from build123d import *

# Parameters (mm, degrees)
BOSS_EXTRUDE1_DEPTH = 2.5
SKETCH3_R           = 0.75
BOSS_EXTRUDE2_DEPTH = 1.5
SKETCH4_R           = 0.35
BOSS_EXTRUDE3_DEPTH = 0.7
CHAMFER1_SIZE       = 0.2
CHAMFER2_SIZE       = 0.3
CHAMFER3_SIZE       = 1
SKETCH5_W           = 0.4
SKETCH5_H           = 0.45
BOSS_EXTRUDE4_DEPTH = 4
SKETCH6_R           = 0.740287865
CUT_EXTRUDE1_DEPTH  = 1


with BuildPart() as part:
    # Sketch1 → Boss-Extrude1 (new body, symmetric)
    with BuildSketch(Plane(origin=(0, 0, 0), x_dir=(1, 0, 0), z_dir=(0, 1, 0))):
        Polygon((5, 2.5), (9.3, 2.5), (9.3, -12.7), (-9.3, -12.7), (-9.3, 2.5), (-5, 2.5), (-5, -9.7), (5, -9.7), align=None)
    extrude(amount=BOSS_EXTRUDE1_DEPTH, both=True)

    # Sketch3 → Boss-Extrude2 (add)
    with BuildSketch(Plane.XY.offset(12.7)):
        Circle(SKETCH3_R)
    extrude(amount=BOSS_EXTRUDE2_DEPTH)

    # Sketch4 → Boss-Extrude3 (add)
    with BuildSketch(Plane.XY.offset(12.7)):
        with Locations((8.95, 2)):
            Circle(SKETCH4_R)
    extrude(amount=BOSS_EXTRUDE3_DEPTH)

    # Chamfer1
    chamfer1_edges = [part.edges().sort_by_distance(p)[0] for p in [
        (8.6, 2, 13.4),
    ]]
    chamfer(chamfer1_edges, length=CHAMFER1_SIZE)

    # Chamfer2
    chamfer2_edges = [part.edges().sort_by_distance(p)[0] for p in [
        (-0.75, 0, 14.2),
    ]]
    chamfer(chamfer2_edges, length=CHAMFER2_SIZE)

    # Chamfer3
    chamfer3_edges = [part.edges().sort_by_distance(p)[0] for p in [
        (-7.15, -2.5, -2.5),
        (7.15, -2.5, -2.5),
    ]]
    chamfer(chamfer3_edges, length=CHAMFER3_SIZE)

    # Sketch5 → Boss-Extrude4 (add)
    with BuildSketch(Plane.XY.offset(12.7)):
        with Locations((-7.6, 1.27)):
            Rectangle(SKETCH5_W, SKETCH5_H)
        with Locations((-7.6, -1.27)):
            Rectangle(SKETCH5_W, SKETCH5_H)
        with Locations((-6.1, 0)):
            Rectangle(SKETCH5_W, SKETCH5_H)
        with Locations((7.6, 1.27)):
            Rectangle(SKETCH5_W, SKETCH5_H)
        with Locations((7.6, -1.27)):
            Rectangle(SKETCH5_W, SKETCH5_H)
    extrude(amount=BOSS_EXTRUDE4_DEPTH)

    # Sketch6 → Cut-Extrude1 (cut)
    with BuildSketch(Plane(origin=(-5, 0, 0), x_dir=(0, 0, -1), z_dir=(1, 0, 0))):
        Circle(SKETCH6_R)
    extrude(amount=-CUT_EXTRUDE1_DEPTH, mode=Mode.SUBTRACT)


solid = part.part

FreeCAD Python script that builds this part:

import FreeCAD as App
import Part
import Sketcher


def edges_at(feature, points):
    """Names of the edges that pass closest to the given points."""
    edges = feature.Shape.Edges
    near = lambda p: min(range(len(edges)), key=lambda i: edges[i].distToShape(Part.Vertex(*p))[0])
    return sorted({f"Edge{near(p) + 1}" for p in points})

doc = App.newDocument("Part")
body = doc.addObject("PartDesign::Body", "Body")

# Sketch on XZ plane
sketch1 = body.newObject("Sketcher::SketchObject", "Sketch")
sketch1.AttachmentSupport = (doc.getObject("XZ_Plane"), [""])
sketch1.MapMode = "FlatFace"
sketch1.addGeometry(Part.LineSegment(App.Vector(9.3, -2.5, 0), App.Vector(5, -2.5, 0)), False)
sketch1.addGeometry(Part.LineSegment(App.Vector(5, -2.5, 0), App.Vector(5, 9.7, 0)), False)
sketch1.addGeometry(Part.LineSegment(App.Vector(5, 9.7, 0), App.Vector(-5, 9.7, 0)), False)
sketch1.addGeometry(Part.LineSegment(App.Vector(-5, 9.7, 0), App.Vector(-5, -2.5, 0)), False)
sketch1.addGeometry(Part.LineSegment(App.Vector(-5, -2.5, 0), App.Vector(-9.3, -2.5, 0)), False)
sketch1.addGeometry(Part.LineSegment(App.Vector(-9.3, -2.5, 0), App.Vector(-9.3, 12.7, 0)), False)
sketch1.addGeometry(Part.LineSegment(App.Vector(-9.3, 12.7, 0), App.Vector(9.3, 12.7, 0)), False)
sketch1.addGeometry(Part.LineSegment(App.Vector(9.3, 12.7, 0), App.Vector(9.3, -2.5, 0)), False)
sketch1.addConstraint(Sketcher.Constraint("Coincident", 0, 2, 1, 1))
sketch1.addConstraint(Sketcher.Constraint("Coincident", 1, 2, 2, 1))
sketch1.addConstraint(Sketcher.Constraint("Coincident", 2, 2, 3, 1))
sketch1.addConstraint(Sketcher.Constraint("Coincident", 3, 2, 4, 1))
sketch1.addConstraint(Sketcher.Constraint("Coincident", 4, 2, 5, 1))
sketch1.addConstraint(Sketcher.Constraint("Coincident", 5, 2, 6, 1))
sketch1.addConstraint(Sketcher.Constraint("Coincident", 6, 2, 7, 1))
sketch1.addConstraint(Sketcher.Constraint("Coincident", 7, 2, 0, 1))
sketch1.addConstraint(Sketcher.Constraint("Horizontal", 0))
sketch1.addConstraint(Sketcher.Constraint("Vertical", 1))
sketch1.addConstraint(Sketcher.Constraint("Horizontal", 2))
sketch1.addConstraint(Sketcher.Constraint("Vertical", 3))
sketch1.addConstraint(Sketcher.Constraint("Horizontal", 4))
sketch1.addConstraint(Sketcher.Constraint("Vertical", 5))
sketch1.addConstraint(Sketcher.Constraint("Horizontal", 6))
sketch1.addConstraint(Sketcher.Constraint("Vertical", 7))
sketch1.addConstraint(Sketcher.Constraint("Symmetric", 0, 2, 3, 2, -2))
sketch1.addConstraint(Sketcher.Constraint("Equal", 0, 4))
sketch1.addConstraint(Sketcher.Constraint("DistanceX", 2, 2, 2, 1, 10.0))
sketch1.addConstraint(Sketcher.Constraint("DistanceX", 0, 2, 0, 1, 4.3))
sketch1.addConstraint(Sketcher.Constraint("DistanceY", 1, 1, 1, 2, 12.2))
sketch1.addConstraint(Sketcher.Constraint("DistanceY", 5, 1, 5, 2, 15.2))
sketch1.addConstraint(Sketcher.Constraint("DistanceY", 0, 2, -1, 1, 2.5))
pad1 = body.newObject("PartDesign::Pad", "Pad")
pad1.Profile = sketch1
pad1.Length = 5
pad1.Midplane = True

# Sketch on XY plane
sketch2 = body.newObject("Sketcher::SketchObject", "Sketch001")
sketch2.AttachmentSupport = (doc.getObject("XY_Plane"), [""])
sketch2.MapMode = "FlatFace"
sketch2.AttachmentOffset = App.Placement(App.Vector(0, 0, 12.7), App.Rotation())
sketch2.addGeometry(Part.Circle(App.Vector(0, 0, 0), App.Vector(0, 0, 1), 0.8), False)
sketch2.addConstraint(Sketcher.Constraint("Coincident", 0, 3, -1, 1))
sketch2.addConstraint(Sketcher.Constraint("Diameter", 0, 1.5))
pad2 = body.newObject("PartDesign::Pad", "Pad001")
pad2.Profile = sketch2
pad2.Length = 1.5

# Sketch on XY plane
sketch3 = body.newObject("Sketcher::SketchObject", "Sketch002")
sketch3.AttachmentSupport = (doc.getObject("XY_Plane"), [""])
sketch3.MapMode = "FlatFace"
sketch3.AttachmentOffset = App.Placement(App.Vector(0, 0, 12.7), App.Rotation())
sketch3.addGeometry(Part.Circle(App.Vector(8.95, 2, 0), App.Vector(0, 0, 1), 0.35), False)
sketch3.addConstraint(Sketcher.Constraint("Diameter", 0, 0.7))
sketch3.addConstraint(Sketcher.Constraint("DistanceY", -1, 1, 0, 3, 2.0))
sketch3.addConstraint(Sketcher.Constraint("DistanceX", -1, 1, 0, 3, 8.95))
pad3 = body.newObject("PartDesign::Pad", "Pad002")
pad3.Profile = sketch3
pad3.Length = 0.7
doc.recompute()

chamfer = body.newObject("PartDesign::Chamfer", "Chamfer")
chamfer.Base = (pad3, edges_at(pad3, [(8.6, 2, 13.4)]))
chamfer.Size = 0.2
doc.recompute()

chamfer2 = body.newObject("PartDesign::Chamfer", "Chamfer001")
chamfer2.Base = (chamfer, edges_at(chamfer, [(-0.75, 0, 14.2)]))
chamfer2.Size = 0.3
doc.recompute()

chamfer3 = body.newObject("PartDesign::Chamfer", "Chamfer002")
chamfer3.Base = (chamfer2, edges_at(chamfer2, [(-7.15, -2.5, -2.5), (7.15, -2.5, -2.5)]))
chamfer3.Size = 1

# Sketch on XY plane
sketch4 = body.newObject("Sketcher::SketchObject", "Sketch003")
sketch4.AttachmentSupport = (doc.getObject("XY_Plane"), [""])
sketch4.MapMode = "FlatFace"
sketch4.AttachmentOffset = App.Placement(App.Vector(0, 0, 12.7), App.Rotation())
sketch4.addGeometry(Part.LineSegment(App.Vector(-7.8, 1.5, 0), App.Vector(-7.8, 1.04, 0)), False)
sketch4.addGeometry(Part.LineSegment(App.Vector(-7.8, 1.04, 0), App.Vector(-7.4, 1.04, 0)), False)
sketch4.addGeometry(Part.LineSegment(App.Vector(-7.4, 1.04, 0), App.Vector(-7.4, 1.5, 0)), False)
sketch4.addGeometry(Part.LineSegment(App.Vector(-7.4, 1.5, 0), App.Vector(-7.8, 1.5, 0)), False)
sketch4.addGeometry(Part.LineSegment(App.Vector(-7.8, -1.04, 0), App.Vector(-7.8, -1.5, 0)), False)
sketch4.addGeometry(Part.LineSegment(App.Vector(-7.8, -1.5, 0), App.Vector(-7.4, -1.5, 0)), False)
sketch4.addGeometry(Part.LineSegment(App.Vector(-7.4, -1.5, 0), App.Vector(-7.4, -1.04, 0)), False)
sketch4.addGeometry(Part.LineSegment(App.Vector(-7.4, -1.04, 0), App.Vector(-7.8, -1.04, 0)), False)
sketch4.addGeometry(Part.LineSegment(App.Vector(-6.3, 0.23, 0), App.Vector(-6.3, -0.23, 0)), False)
sketch4.addGeometry(Part.LineSegment(App.Vector(-6.3, -0.23, 0), App.Vector(-5.9, -0.23, 0)), False)
sketch4.addGeometry(Part.LineSegment(App.Vector(-5.9, -0.23, 0), App.Vector(-5.9, 0.23, 0)), False)
sketch4.addGeometry(Part.LineSegment(App.Vector(-5.9, 0.23, 0), App.Vector(-6.3, 0.23, 0)), False)
sketch4.addGeometry(Part.LineSegment(App.Vector(7.4, 1.5, 0), App.Vector(7.4, 1.04, 0)), False)
sketch4.addGeometry(Part.LineSegment(App.Vector(7.4, 1.04, 0), App.Vector(7.8, 1.04, 0)), False)
sketch4.addGeometry(Part.LineSegment(App.Vector(7.8, 1.04, 0), App.Vector(7.8, 1.5, 0)), False)
sketch4.addGeometry(Part.LineSegment(App.Vector(7.8, 1.5, 0), App.Vector(7.4, 1.5, 0)), False)
sketch4.addGeometry(Part.LineSegment(App.Vector(7.4, -1.04, 0), App.Vector(7.4, -1.5, 0)), False)
sketch4.addGeometry(Part.LineSegment(App.Vector(7.4, -1.5, 0), App.Vector(7.8, -1.5, 0)), False)
sketch4.addGeometry(Part.LineSegment(App.Vector(7.8, -1.5, 0), App.Vector(7.8, -1.04, 0)), False)
sketch4.addGeometry(Part.LineSegment(App.Vector(7.8, -1.04, 0), App.Vector(7.4, -1.04, 0)), False)
sketch4.addConstraint(Sketcher.Constraint("Coincident", 0, 2, 1, 1))
sketch4.addConstraint(Sketcher.Constraint("Coincident", 1, 2, 2, 1))
sketch4.addConstraint(Sketcher.Constraint("Coincident", 2, 2, 3, 1))
sketch4.addConstraint(Sketcher.Constraint("Coincident", 3, 2, 0, 1))
sketch4.addConstraint(Sketcher.Constraint("Coincident", 4, 2, 5, 1))
sketch4.addConstraint(Sketcher.Constraint("Coincident", 5, 2, 6, 1))
sketch4.addConstraint(Sketcher.Constraint("Coincident", 6, 2, 7, 1))
sketch4.addConstraint(Sketcher.Constraint("Coincident", 7, 2, 4, 1))
sketch4.addConstraint(Sketcher.Constraint("Coincident", 8, 2, 9, 1))
sketch4.addConstraint(Sketcher.Constraint("Coincident", 9, 2, 10, 1))
sketch4.addConstraint(Sketcher.Constraint("Coincident", 10, 2, 11, 1))
sketch4.addConstraint(Sketcher.Constraint("Coincident", 11, 2, 8, 1))
sketch4.addConstraint(Sketcher.Constraint("Coincident", 12, 2, 13, 1))
sketch4.addConstraint(Sketcher.Constraint("Coincident", 13, 2, 14, 1))
sketch4.addConstraint(Sketcher.Constraint("Coincident", 14, 2, 15, 1))
sketch4.addConstraint(Sketcher.Constraint("Coincident", 15, 2, 12, 1))
sketch4.addConstraint(Sketcher.Constraint("Coincident", 16, 2, 17, 1))
sketch4.addConstraint(Sketcher.Constraint("Coincident", 17, 2, 18, 1))
sketch4.addConstraint(Sketcher.Constraint("Coincident", 18, 2, 19, 1))
sketch4.addConstraint(Sketcher.Constraint("Coincident", 19, 2, 16, 1))
sketch4.addConstraint(Sketcher.Constraint("Vertical", 0))
sketch4.addConstraint(Sketcher.Constraint("Horizontal", 1))
sketch4.addConstraint(Sketcher.Constraint("Vertical", 2))
sketch4.addConstraint(Sketcher.Constraint("Horizontal", 3))
sketch4.addConstraint(Sketcher.Constraint("Vertical", 4))
sketch4.addConstraint(Sketcher.Constraint("Horizontal", 5))
sketch4.addConstraint(Sketcher.Constraint("Vertical", 6))
sketch4.addConstraint(Sketcher.Constraint("Horizontal", 7))
sketch4.addConstraint(Sketcher.Constraint("Vertical", 8))
sketch4.addConstraint(Sketcher.Constraint("Horizontal", 9))
sketch4.addConstraint(Sketcher.Constraint("Vertical", 10))
sketch4.addConstraint(Sketcher.Constraint("Horizontal", 11))
sketch4.addConstraint(Sketcher.Constraint("Vertical", 12))
sketch4.addConstraint(Sketcher.Constraint("Horizontal", 13))
sketch4.addConstraint(Sketcher.Constraint("Vertical", 14))
sketch4.addConstraint(Sketcher.Constraint("Horizontal", 15))
sketch4.addConstraint(Sketcher.Constraint("Vertical", 16))
sketch4.addConstraint(Sketcher.Constraint("Horizontal", 17))
sketch4.addConstraint(Sketcher.Constraint("Vertical", 18))
sketch4.addConstraint(Sketcher.Constraint("Horizontal", 19))
sketch4.addConstraint(Sketcher.Constraint("Symmetric", 6, 2, 12, 2, -1, 1))
sketch4.addConstraint(Sketcher.Constraint("Symmetric", 4, 2, 14, 2, -1, 1))
sketch4.addConstraint(Sketcher.Constraint("Symmetric", 2, 2, 16, 2, -1, 1))
sketch4.addConstraint(Sketcher.Constraint("Symmetric", 0, 2, 18, 2, -1, 1))
sketch4.addConstraint(Sketcher.Constraint("Symmetric", 1, 2, 12, 2, -2))
sketch4.addConstraint(Sketcher.Constraint("Symmetric", 3, 2, 14, 2, -2))
sketch4.addConstraint(Sketcher.Constraint("Equal", 7, 9))
sketch4.addConstraint(Sketcher.Constraint("Equal", 6, 8))
sketch4.addConstraint(Sketcher.Constraint("DistanceX", 1, 1, 1, 2, 0.4))
sketch4.addConstraint(Sketcher.Constraint("DistanceY", 0, 2, 0, 1, 0.45))
sketch4.addConstraint(Sketcher.Constraint("DistanceX", 0, 2, -1, 1, 7.8))
sketch4.addConstraint(Sketcher.Constraint("DistanceX", 8, 2, -1, 1, 6.3))
sketch4.addConstraint(Sketcher.Constraint("DistanceY", 4, 2, 0, 2, 2.54))
sketch4.addConstraint(Sketcher.Constraint("DistanceY", 6, 2, 8, 2, 0.82))
pad4 = body.newObject("PartDesign::Pad", "Pad003")
pad4.Profile = sketch4
pad4.Length = 4

# Sketch on YZ plane
sketch5 = body.newObject("Sketcher::SketchObject", "Sketch004")
sketch5.AttachmentSupport = (doc.getObject("YZ_Plane"), [""])
sketch5.MapMode = "FlatFace"
sketch5.AttachmentOffset = App.Placement(App.Vector(0, 0, -5), App.Rotation())
sketch5.addGeometry(Part.Circle(App.Vector(0, 0, 0), App.Vector(0, 0, 1), 0.7), False)
sketch5.addConstraint(Sketcher.Constraint("Coincident", 0, 3, -1, 1))
sketch5.addConstraint(Sketcher.Constraint("Diameter", 0, 1.480576))
pocket1 = body.newObject("PartDesign::Pocket", "Pocket")
pocket1.Profile = sketch5
pocket1.Length = 1

doc.recompute()
